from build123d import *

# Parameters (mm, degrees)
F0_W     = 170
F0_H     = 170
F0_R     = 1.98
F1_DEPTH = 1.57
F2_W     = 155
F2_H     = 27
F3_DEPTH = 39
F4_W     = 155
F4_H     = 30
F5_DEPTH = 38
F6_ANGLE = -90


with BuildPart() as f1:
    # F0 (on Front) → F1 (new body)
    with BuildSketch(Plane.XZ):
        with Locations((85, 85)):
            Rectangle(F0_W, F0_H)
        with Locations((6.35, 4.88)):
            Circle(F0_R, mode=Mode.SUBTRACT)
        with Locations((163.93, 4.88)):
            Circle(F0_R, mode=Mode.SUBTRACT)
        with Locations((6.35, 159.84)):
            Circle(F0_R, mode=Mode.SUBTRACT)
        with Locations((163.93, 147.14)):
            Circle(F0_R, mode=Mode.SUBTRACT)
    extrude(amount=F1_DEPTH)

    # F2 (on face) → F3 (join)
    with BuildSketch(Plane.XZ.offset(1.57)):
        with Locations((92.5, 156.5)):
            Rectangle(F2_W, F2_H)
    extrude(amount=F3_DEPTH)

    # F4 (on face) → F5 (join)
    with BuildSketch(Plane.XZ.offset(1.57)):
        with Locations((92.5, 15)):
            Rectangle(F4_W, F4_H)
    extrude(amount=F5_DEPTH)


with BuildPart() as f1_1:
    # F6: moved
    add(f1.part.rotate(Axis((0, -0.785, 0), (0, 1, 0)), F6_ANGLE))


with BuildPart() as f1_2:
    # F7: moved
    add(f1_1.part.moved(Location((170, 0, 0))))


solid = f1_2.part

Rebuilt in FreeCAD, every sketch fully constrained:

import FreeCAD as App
import Part
import Sketcher
from FreeCAD import Vector
Q = App.Units.Quantity

doc = App.newDocument("Part")
params = doc.addObject("Spreadsheet::Sheet", "Params")
for row, (alias, value) in enumerate([
    ("sketch1_diameter", "3.96 mm"),
    ("sketch1_width", "170 mm"),
    ("pad1_length", "1.57 mm"),
    ("sketch2_width", "155 mm"),
    ("sketch2_height", "27 mm"),
    ("pad2_length", "39 mm"),
    ("sketch3_width", "155 mm"),
    ("sketch3_height", "30 mm"),
    ("pad3_length", "38 mm"),
], start=1):
    params.set(f"A{row}", alias)
    params.set(f"B{row}", "=" + value)
    params.setAlias(f"B{row}", alias)

body = doc.addObject("PartDesign::Body", "Body")

# Sketch on XZ plane
sketch1 = body.newObject("Sketcher::SketchObject", "Sketch")
sketch1.AttachmentSupport = (doc.getObject("XZ_Plane"), [""])
sketch1.MapMode = "FlatFace"
sketch1.addGeometry(Part.LineSegment(Vector(0, 170, 0), Vector(0, 0, 0)), False)
sketch1.addGeometry(Part.LineSegment(Vector(0, 0, 0), Vector(170, 0, 0)), False)
sketch1.addGeometry(Part.LineSegment(Vector(170, 0, 0), Vector(170, 170, 0)), False)
sketch1.addGeometry(Part.LineSegment(Vector(170, 170, 0), Vector(0, 170, 0)), False)
sketch1.addGeometry(Part.Circle(Vector(6.35, 4.88, 0), Vector(0, 0, 1), 1.98), False)
sketch1.addGeometry(Part.Circle(Vector(163.93, 4.88, 0), Vector(0, 0, 1), 1.98), False)
sketch1.addGeometry(Part.Circle(Vector(6.35, 159.84, 0), Vector(0, 0, 1), 1.98), False)
sketch1.addGeometry(Part.Circle(Vector(163.93, 147.14, 0), Vector(0, 0, 1), 1.98), False)
sketch1.addConstraint(Sketcher.Constraint("Coincident", 0, 2, 1, 1))
sketch1.addConstraint(Sketcher.Constraint("Coincident", 1, 2, 2, 1))
sketch1.addConstraint(Sketcher.Constraint("Coincident", 2, 2, 3, 1))
sketch1.addConstraint(Sketcher.Constraint("Coincident", 3, 2, 0, 1))
sketch1.addConstraint(Sketcher.Constraint("Vertical", 0))
sketch1.addConstraint(Sketcher.Constraint("Horizontal", 1))
sketch1.addConstraint(Sketcher.Constraint("Vertical", 2))
sketch1.addConstraint(Sketcher.Constraint("Horizontal", 3))
sketch1.addConstraint(Sketcher.Constraint("Coincident", 0, 2, -1, 1))
sketch1.addConstraint(Sketcher.Constraint("Equal", 4, 5))
sketch1.addConstraint(Sketcher.Constraint("Equal", 5, 6))
sketch1.addConstraint(Sketcher.Constraint("Equal", 6, 7))
sketch1.addConstraint(Sketcher.Constraint("Horizontal", 4, 3, 5, 3))
sketch1.addConstraint(Sketcher.Constraint("Vertical", 4, 3, 6, 3))
sketch1.addConstraint(Sketcher.Constraint("Vertical", 5, 3, 7, 3))
sketch1.addConstraint(Sketcher.Constraint("Equal", 3, 0))
sketch1.addConstraint(Sketcher.Constraint("Diameter", 4, Q("3.96 mm")))
sketch1.addConstraint(Sketcher.Constraint("DistanceX", 1, 1, 1, 2, Q("170 mm")))
sketch1.addConstraint(Sketcher.Constraint("DistanceY", 7, 3, 6, 3, Q("12.7 mm")))
sketch1.addConstraint(Sketcher.Constraint("DistanceX", -1, 1, 4, 3, Q("6.35 mm")))
sketch1.addConstraint(Sketcher.Constraint("DistanceY", -1, 1, 4, 3, Q("4.88 mm")))
sketch1.addConstraint(Sketcher.Constraint("DistanceX", -1, 1, 5, 3, Q("163.93 mm")))
sketch1.addConstraint(Sketcher.Constraint("DistanceY", -1, 1, 6, 3, Q("159.84 mm")))
sketch1.setExpression("Constraints[16]", "Params.sketch1_diameter")
sketch1.setExpression("Constraints[17]", "Params.sketch1_width")
pad1 = body.newObject("PartDesign::Pad", "Pad")
pad1.Profile = sketch1
pad1.setExpression("Length", "Params.pad1_length")

# Sketch on XZ plane
sketch2 = body.newObject("Sketcher::SketchObject", "Sketch001")
sketch2.AttachmentSupport = (doc.getObject("XZ_Plane"), [""])
sketch2.MapMode = "FlatFace"
sketch2.AttachmentOffset = App.Placement(Vector(0, 0, 1.57), App.Rotation())
sketch2.addGeometry(Part.LineSegment(Vector(15, 170, 0), Vector(15, 143, 0)), False)
sketch2.addGeometry(Part.LineSegment(Vector(15, 143, 0), Vector(170, 143, 0)), False)
sketch2.addGeometry(Part.LineSegment(Vector(170, 143, 0), Vector(170, 170, 0)), False)
sketch2.addGeometry(Part.LineSegment(Vector(170, 170, 0), Vector(15, 170, 0)), False)
sketch2.addConstraint(Sketcher.Constraint("Coincident", 0, 2, 1, 1))
sketch2.addConstraint(Sketcher.Constraint("Coincident", 1, 2, 2, 1))
sketch2.addConstraint(Sketcher.Constraint("Coincident", 2, 2, 3, 1))
sketch2.addConstraint(Sketcher.Constraint("Coincident", 3, 2, 0, 1))
sketch2.addConstraint(Sketcher.Constraint("Vertical", 0))
sketch2.addConstraint(Sketcher.Constraint("Horizontal", 1))
sketch2.addConstraint(Sketcher.Constraint("Vertical", 2))
sketch2.addConstraint(Sketcher.Constraint("Horizontal", 3))
sketch2.addConstraint(Sketcher.Constraint("DistanceX", 1, 1, 1, 2, Q("155 mm")))
sketch2.addConstraint(Sketcher.Constraint("DistanceY", 0, 2, 0, 1, Q("27 mm")))
sketch2.addConstraint(Sketcher.Constraint("DistanceX", -1, 1, 0, 2, Q("15 mm")))
sketch2.addConstraint(Sketcher.Constraint("DistanceY", -1, 1, 0, 2, Q("143 mm")))
sketch2.setExpression("Constraints[8]", "Params.sketch2_width")
sketch2.setExpression("Constraints[9]", "Params.sketch2_height")
pad2 = body.newObject("PartDesign::Pad", "Pad001")
pad2.Profile = sketch2
pad2.setExpression("Length", "Params.pad2_length")

# Sketch on XZ plane
sketch3 = body.newObject("Sketcher::SketchObject", "Sketch002")
sketch3.AttachmentSupport = (doc.getObject("XZ_Plane"), [""])
sketch3.MapMode = "FlatFace"
sketch3.AttachmentOffset = App.Placement(Vector(0, 0, 1.57), App.Rotation())
sketch3.addGeometry(Part.LineSegment(Vector(15, 30, 0), Vector(15, 0, 0)), False)
sketch3.addGeometry(Part.LineSegment(Vector(15, 0, 0), Vector(170, 0, 0)), False)
sketch3.addGeometry(Part.LineSegment(Vector(170, 0, 0), Vector(170, 30, 0)), False)
sketch3.addGeometry(Part.LineSegment(Vector(170, 30, 0), Vector(15, 30, 0)), False)
sketch3.addConstraint(Sketcher.Constraint("Coincident", 0, 2, 1, 1))
sketch3.addConstraint(Sketcher.Constraint("Coincident", 1, 2, 2, 1))
sketch3.addConstraint(Sketcher.Constraint("Coincident", 2, 2, 3, 1))
sketch3.addConstraint(Sketcher.Constraint("Coincident", 3, 2, 0, 1))
sketch3.addConstraint(Sketcher.Constraint("Vertical", 0))
sketch3.addConstraint(Sketcher.Constraint("Horizontal", 1))
sketch3.addConstraint(Sketcher.Constraint("Vertical", 2))
sketch3.addConstraint(Sketcher.Constraint("Horizontal", 3))
sketch3.addConstraint(Sketcher.Constraint("PointOnObject", 0, 2, -1))
sketch3.addConstraint(Sketcher.Constraint("DistanceX", 1, 1, 1, 2, Q("155 mm")))
sketch3.addConstraint(Sketcher.Constraint("DistanceY", 0, 2, 0, 1, Q("30 mm")))
sketch3.addConstraint(Sketcher.Constraint("DistanceX", -1, 1, 0, 2, Q("15 mm")))
sketch3.setExpression("Constraints[9]", "Params.sketch3_width")
sketch3.setExpression("Constraints[10]", "Params.sketch3_height")
pad3 = body.newObject("PartDesign::Pad", "Pad002")
pad3.Profile = sketch3
pad3.setExpression("Length", "Params.pad3_length")
body2 = doc.addObject("PartDesign::Body", "Body001")
doc.recompute()

body.Placement = App.Placement(Vector(0, 0, 0), App.Rotation(Vector(0, 1, 0), 270))
boolean = body2.newObject("PartDesign::Boolean", "Boolean")
boolean.Type = "Fuse"
boolean.addObjects([body])
body3 = doc.addObject("PartDesign::Body", "Body002")
doc.recompute()

body2.Placement = App.Placement(Vector(170, 0, 0), App.Rotation(Vector(0, 0, 1), 0))
boolean2 = body3.newObject("PartDesign::Boolean", "Boolean001")
boolean2.Type = "Fuse"
boolean2.addObjects([body2])

doc.recompute()
